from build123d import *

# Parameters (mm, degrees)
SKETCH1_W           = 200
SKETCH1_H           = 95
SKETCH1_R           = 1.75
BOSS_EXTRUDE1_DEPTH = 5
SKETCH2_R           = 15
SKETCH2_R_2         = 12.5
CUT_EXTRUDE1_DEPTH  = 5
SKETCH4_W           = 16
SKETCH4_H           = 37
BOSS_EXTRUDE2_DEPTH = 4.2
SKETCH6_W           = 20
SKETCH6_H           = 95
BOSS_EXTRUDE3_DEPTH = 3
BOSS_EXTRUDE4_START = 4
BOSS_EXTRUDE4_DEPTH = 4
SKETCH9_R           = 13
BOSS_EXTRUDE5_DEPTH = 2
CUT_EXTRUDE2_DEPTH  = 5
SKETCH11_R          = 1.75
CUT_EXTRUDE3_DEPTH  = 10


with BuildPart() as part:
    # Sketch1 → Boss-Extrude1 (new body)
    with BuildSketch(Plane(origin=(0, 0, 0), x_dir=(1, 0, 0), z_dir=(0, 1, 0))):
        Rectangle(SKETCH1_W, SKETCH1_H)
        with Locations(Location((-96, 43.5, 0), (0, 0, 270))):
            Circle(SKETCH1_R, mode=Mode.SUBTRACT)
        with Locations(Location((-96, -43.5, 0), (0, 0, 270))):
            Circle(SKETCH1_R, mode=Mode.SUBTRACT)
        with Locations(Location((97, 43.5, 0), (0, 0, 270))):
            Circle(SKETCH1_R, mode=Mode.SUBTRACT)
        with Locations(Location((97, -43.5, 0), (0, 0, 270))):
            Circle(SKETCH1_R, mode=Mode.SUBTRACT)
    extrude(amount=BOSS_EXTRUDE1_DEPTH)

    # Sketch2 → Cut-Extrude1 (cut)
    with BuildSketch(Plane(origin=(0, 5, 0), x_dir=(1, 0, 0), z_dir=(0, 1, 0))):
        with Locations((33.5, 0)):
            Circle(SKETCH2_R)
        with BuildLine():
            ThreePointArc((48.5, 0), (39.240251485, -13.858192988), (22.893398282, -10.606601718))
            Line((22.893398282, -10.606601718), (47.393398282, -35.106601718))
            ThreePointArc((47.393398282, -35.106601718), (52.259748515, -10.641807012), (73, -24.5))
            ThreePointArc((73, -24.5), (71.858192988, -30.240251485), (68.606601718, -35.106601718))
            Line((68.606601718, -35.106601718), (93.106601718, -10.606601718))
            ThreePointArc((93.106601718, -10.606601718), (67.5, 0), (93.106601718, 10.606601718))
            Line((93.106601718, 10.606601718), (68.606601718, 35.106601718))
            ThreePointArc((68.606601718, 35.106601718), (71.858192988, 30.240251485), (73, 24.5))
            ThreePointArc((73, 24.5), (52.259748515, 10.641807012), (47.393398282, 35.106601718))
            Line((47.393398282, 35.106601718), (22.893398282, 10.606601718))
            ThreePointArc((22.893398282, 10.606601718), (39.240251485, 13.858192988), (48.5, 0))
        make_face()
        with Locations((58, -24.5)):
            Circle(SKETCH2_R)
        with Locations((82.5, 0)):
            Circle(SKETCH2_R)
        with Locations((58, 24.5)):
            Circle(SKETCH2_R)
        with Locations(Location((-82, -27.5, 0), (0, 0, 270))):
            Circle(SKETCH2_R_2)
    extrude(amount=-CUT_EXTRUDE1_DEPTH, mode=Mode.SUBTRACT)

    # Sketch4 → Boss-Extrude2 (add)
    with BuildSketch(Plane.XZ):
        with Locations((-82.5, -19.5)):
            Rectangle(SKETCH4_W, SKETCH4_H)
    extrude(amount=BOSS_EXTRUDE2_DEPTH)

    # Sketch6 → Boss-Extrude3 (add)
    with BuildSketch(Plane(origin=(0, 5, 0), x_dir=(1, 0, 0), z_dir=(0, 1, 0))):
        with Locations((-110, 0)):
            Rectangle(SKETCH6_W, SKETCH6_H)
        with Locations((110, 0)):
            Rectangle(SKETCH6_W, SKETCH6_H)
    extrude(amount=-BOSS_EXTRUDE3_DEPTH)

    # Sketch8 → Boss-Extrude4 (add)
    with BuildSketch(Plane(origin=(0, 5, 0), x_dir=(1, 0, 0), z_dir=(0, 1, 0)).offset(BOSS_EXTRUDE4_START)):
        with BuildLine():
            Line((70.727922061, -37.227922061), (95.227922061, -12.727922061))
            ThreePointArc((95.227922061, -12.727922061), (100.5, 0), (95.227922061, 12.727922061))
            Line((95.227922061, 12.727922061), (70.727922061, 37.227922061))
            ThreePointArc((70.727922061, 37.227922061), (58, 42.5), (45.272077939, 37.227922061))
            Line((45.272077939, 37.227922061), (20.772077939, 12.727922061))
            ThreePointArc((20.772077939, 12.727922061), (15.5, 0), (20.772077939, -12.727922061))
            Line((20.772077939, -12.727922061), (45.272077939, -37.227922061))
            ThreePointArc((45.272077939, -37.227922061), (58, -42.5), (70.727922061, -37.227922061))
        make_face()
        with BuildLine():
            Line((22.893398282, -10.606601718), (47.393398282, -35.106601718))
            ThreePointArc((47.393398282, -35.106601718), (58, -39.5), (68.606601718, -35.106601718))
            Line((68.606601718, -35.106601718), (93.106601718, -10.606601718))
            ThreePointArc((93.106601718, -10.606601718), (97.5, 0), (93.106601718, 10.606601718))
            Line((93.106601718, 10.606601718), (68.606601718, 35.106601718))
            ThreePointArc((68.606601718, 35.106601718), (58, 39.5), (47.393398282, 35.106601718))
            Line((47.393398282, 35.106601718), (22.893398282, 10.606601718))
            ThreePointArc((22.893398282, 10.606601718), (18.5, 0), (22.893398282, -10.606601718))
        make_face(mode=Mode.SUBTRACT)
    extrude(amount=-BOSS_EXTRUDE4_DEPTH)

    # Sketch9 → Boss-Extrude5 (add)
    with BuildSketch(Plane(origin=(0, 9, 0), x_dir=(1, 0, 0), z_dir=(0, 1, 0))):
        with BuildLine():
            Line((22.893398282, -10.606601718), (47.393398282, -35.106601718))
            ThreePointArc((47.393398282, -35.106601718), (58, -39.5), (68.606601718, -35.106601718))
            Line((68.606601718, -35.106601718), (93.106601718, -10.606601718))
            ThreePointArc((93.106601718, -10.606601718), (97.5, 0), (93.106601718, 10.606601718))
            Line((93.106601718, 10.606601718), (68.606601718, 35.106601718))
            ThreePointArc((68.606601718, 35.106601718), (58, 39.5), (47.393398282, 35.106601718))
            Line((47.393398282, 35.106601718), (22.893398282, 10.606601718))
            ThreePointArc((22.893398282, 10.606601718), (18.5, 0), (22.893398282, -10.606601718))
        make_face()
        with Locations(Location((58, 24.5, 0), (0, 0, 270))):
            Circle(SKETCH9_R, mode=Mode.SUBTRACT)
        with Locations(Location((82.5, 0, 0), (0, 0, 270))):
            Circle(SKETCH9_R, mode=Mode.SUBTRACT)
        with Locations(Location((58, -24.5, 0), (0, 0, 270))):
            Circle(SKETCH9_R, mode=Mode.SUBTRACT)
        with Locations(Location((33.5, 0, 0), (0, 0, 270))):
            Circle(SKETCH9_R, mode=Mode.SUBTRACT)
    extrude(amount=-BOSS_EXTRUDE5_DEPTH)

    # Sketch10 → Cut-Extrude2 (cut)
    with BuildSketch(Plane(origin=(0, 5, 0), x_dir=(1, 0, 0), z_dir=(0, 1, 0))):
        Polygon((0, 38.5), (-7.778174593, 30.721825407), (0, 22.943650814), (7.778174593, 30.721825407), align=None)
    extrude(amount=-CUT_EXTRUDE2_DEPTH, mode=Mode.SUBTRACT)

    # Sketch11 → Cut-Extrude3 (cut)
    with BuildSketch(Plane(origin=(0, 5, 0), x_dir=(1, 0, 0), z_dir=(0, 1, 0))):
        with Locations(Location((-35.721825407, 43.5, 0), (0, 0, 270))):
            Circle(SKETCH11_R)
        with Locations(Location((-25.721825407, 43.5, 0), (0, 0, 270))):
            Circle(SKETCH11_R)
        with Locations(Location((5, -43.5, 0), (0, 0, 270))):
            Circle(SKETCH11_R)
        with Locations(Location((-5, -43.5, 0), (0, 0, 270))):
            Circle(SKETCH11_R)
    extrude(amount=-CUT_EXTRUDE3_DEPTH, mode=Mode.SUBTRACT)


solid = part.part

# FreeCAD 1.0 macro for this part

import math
import FreeCAD as App
import Part
import Sketcher
from FreeCAD import Vector


def add_polygon(sketch, points):
    """Adds a closed chain of lines whose ends are joined by coincident constraints."""
    first, n = sketch.GeometryCount, len(points)
    for a, b in zip(points, points[1:] + points[:1]):
        sketch.addGeometry(Part.LineSegment(App.Vector(*a, 0), App.Vector(*b, 0)), False)
    for i in range(n):
        sketch.addConstraint(Sketcher.Constraint("Coincident", first + i, 2, first + (i + 1) % n, 1))

doc = App.newDocument("Part")
body = doc.addObject("PartDesign::Body", "Body")

# Sketch on XZ plane
sketch1 = body.newObject("Sketcher::SketchObject", "Sketch")
sketch1.AttachmentSupport = (doc.getObject("XZ_Plane"), [""])
sketch1.MapMode = "FlatFace"
add_polygon(sketch1, [(-100, -47.5), (-100, 47.5), (100, 47.5), (100, -47.5)])  # lines 0-3
sketch1.addGeometry(Part.Circle(Vector(-96, 43.5, 0), Vector(0, 0, 1), 1.8), False)  # 4
sketch1.addGeometry(Part.Circle(Vector(97, 43.5, 0), Vector(0, 0, 1), 1.8), False)  # 5
sketch1.addGeometry(Part.Circle(Vector(-96, -43.5, 0), Vector(0, 0, 1), 1.8), False)  # 6
sketch1.addGeometry(Part.Circle(Vector(97, -43.5, 0), Vector(0, 0, 1), 1.8), False)  # 7
sketch1.addConstraint([
    Sketcher.Constraint("Vertical", 0),
    Sketcher.Constraint("Horizontal", 1),
    Sketcher.Constraint("Vertical", 2),
    Sketcher.Constraint("Horizontal", 3),
    Sketcher.Constraint("Equal", 4, 5),
    Sketcher.Constraint("Equal", 5, 6),
    Sketcher.Constraint("Equal", 6, 7),
    Sketcher.Constraint("Symmetric", 0, 2, 2, 2, -1, 1),
    Sketcher.Constraint("Symmetric", 4, 3, 6, 3, -1),
    Sketcher.Constraint("Symmetric", 5, 3, 7, 3, -1),
    Sketcher.Constraint("Horizontal", 4, 3, 5, 3),
    Sketcher.Constraint("Diameter", 4, 3.5),
    Sketcher.Constraint("DistanceX", 1, 1, 1, 2, 200.0),
    Sketcher.Constraint("DistanceY", 0, 1, 0, 2, 95.0),
    Sketcher.Constraint("DistanceX", 4, 3, -1, 1, 96.0),
    Sketcher.Constraint("DistanceX", -1, 1, 5, 3, 97.0),
    Sketcher.Constraint("DistanceY", 6, 3, 4, 3, 87.0),
])
pad1 = body.newObject("PartDesign::Pad", "Pad")
pad1.Profile = sketch1
pad1.Length = 5
pad1.Reversed = True

# Sketch on XZ plane
sketch2 = body.newObject("Sketcher::SketchObject", "Sketch001")
sketch2.AttachmentSupport = (doc.getObject("XZ_Plane"), [""])
sketch2.MapMode = "FlatFace"
sketch2.AttachmentOffset = App.Placement(Vector(0, 0, -5), App.Rotation())
sketch2.addGeometry([
    Part.ArcOfCircle(Part.Circle(Vector(34, 0, 0), Vector(0, 0, 1), 15), math.radians(135), math.radians(225)),  # 0
    Part.LineSegment(Vector(23, 11, 0), Vector(47, 35, 0)),  # 1
    Part.ArcOfCircle(Part.Circle(Vector(58, 24, 0), Vector(0, 0, 1), 15), math.radians(45), math.radians(135)),  # 2
    Part.LineSegment(Vector(69, 35, 0), Vector(93, 11, 0)),  # 3
    Part.ArcOfCircle(Part.Circle(Vector(82, 0, 0), Vector(0, 0, 1), 15), math.radians(-45), math.radians(45)),  # 4
    Part.LineSegment(Vector(93, -11, 0), Vector(69, -35, 0)),  # 5
    Part.ArcOfCircle(Part.Circle(Vector(58, -24, 0), Vector(0, 0, 1), 15), math.radians(-135), math.radians(-45)),  # 6
    Part.LineSegment(Vector(47, -35, 0), Vector(23, -11, 0)),  # 7
    Part.Circle(Vector(-82, 28, 0), Vector(0, 0, 1), 12),  # 8
], False)
sketch2.addConstraint([
    Sketcher.Constraint("Tangent", 0, 1, 1, 1),
    Sketcher.Constraint("Tangent", 1, 2, 2, 2),
    Sketcher.Constraint("Tangent", 2, 1, 3, 1),
    Sketcher.Constraint("Tangent", 3, 2, 4, 2),
    Sketcher.Constraint("Tangent", 4, 1, 5, 1),
    Sketcher.Constraint("Tangent", 5, 2, 6, 2),
    Sketcher.Constraint("Tangent", 6, 1, 7, 1),
    Sketcher.Constraint("Tangent", 7, 2, 0, 2),
    Sketcher.Constraint("Equal", 0, 2),
    Sketcher.Constraint("Equal", 2, 4),
    Sketcher.Constraint("Equal", 4, 6),
    Sketcher.Constraint("Symmetric", 2, 3, 6, 3, -1),
    Sketcher.Constraint("PointOnObject", 0, 3, -1),
    Sketcher.Constraint("PointOnObject", 4, 3, -1),
    Sketcher.Constraint("Perpendicular", 1, 3),
    Sketcher.Constraint("Perpendicular", 3, 5),
    Sketcher.Constraint("Diameter", 8, 25.0),
    Sketcher.Constraint("Radius", 0, 15.0),
    Sketcher.Constraint("DistanceX", -1, 1, 2, 3, 58.0),
    Sketcher.Constraint("DistanceX", 8, 3, -1, 1, 82.0),
    Sketcher.Constraint("DistanceX", 0, 3, 4, 3, 49.0),
    Sketcher.Constraint("DistanceY", 2, 3, 8, 3, 3.0),
])
pocket1 = body.newObject("PartDesign::Pocket", "Pocket")
pocket1.Profile = sketch2
pocket1.Length = 5
pocket1.Reversed = True

# Sketch on XZ plane
sketch3 = body.newObject("Sketcher::SketchObject", "Sketch002")
sketch3.AttachmentSupport = (doc.getObject("XZ_Plane"), [""])
sketch3.MapMode = "FlatFace"
add_polygon(sketch3, [(-90, -1), (-90, -38), (-74, -38), (-74, -1)])  # lines 0-3
sketch3.addConstraint([
    Sketcher.Constraint("Vertical", 0),
    Sketcher.Constraint("Horizontal", 1),
    Sketcher.Constraint("Vertical", 2),
    Sketcher.Constraint("Horizontal", 3),
    Sketcher.Constraint("DistanceX", 1, 1, 1, 2, 16.0),
    Sketcher.Constraint("DistanceY", 0, 2, 0, 1, 37.0),
    Sketcher.Constraint("DistanceY", 0, 2, -1, 1, 38.0),
    Sketcher.Constraint("DistanceX", 0, 2, -1, 1, 90.5),
])
pad2 = body.newObject("PartDesign::Pad", "Pad001")
pad2.Profile = sketch3
pad2.Length = 4.2

# Sketch on XZ plane
sketch4 = body.newObject("Sketcher::SketchObject", "Sketch003")
sketch4.AttachmentSupport = (doc.getObject("XZ_Plane"), [""])
sketch4.MapMode = "FlatFace"
sketch4.AttachmentOffset = App.Placement(Vector(0, 0, -5), App.Rotation())
add_polygon(sketch4, [(-120, -48), (-120, 48), (-100, 48), (-100, -48)])  # lines 0-3
add_polygon(sketch4, [(100, -48), (100, 48), (120, 48), (120, -48)])  # lines 4-7
sketch4.addConstraint([
    Sketcher.Constraint("Vertical", 0),
    Sketcher.Constraint("Horizontal", 1),
    Sketcher.Constraint("Vertical", 2),
    Sketcher.Constraint("Horizontal", 3),
    Sketcher.Constraint("Vertical", 4),
    Sketcher.Constraint("Horizontal", 5),
    Sketcher.Constraint("Vertical", 6),
    Sketcher.Constraint("Horizontal", 7),
    Sketcher.Constraint("Symmetric", 2, 2, 4, 2, -1, 1),
    Sketcher.Constraint("Symmetric", 0, 2, 6, 2, -1, 1),
    Sketcher.Constraint("Horizontal", 1, 2, 4, 2),
    Sketcher.Constraint("DistanceX", 1, 1, 1, 2, 20.0),
    Sketcher.Constraint("DistanceY", 0, 1, 0, 2, 95.0),
    Sketcher.Constraint("DistanceX", 0, 2, -1, 1, 120.0),
])
pad3 = body.newObject("PartDesign::Pad", "Pad002")
pad3.Profile = sketch4
pad3.Length = 3

# Sketch on XZ plane
sketch5 = body.newObject("Sketcher::SketchObject", "Sketch004")
sketch5.AttachmentSupport = (doc.getObject("XZ_Plane"), [""])
sketch5.MapMode = "FlatFace"
sketch5.AttachmentOffset = App.Placement(Vector(0, 0, -9), App.Rotation())
sketch5.addGeometry([
    Part.LineSegment(Vector(71, 37, 0), Vector(95, 13, 0)),  # 0
    Part.ArcOfCircle(Part.Circle(Vector(83, 0, 0), Vector(0, 0, 1), 18), math.radians(-45), math.radians(45)),  # 1
    Part.LineSegment(Vector(95, -13, 0), Vector(71, -37, 0)),  # 2
    Part.ArcOfCircle(Part.Circle(Vector(58, -25, 0), Vector(0, 0, 1), 18), math.radians(-135), math.radians(-45)),  # 3
    Part.LineSegment(Vector(45, -37, 0), Vector(21, -13, 0)),  # 4
    Part.ArcOfCircle(Part.Circle(Vector(33, 0, 0), Vector(0, 0, 1), 18), math.radians(135), math.radians(225)),  # 5
    Part.LineSegment(Vector(21, 13, 0), Vector(45, 37, 0)),  # 6
    Part.ArcOfCircle(Part.Circle(Vector(58, 25, 0), Vector(0, 0, 1), 18), math.radians(45), math.radians(135)),  # 7
    Part.LineSegment(Vector(47, 35, 0), Vector(23, 11, 0)),  # 8
    Part.ArcOfCircle(Part.Circle(Vector(34, 0, 0), Vector(0, 0, 1), 15), math.radians(135), math.radians(225)),  # 9
    Part.LineSegment(Vector(23, -11, 0), Vector(47, -35, 0)),  # 10
    Part.ArcOfCircle(Part.Circle(Vector(58, -24, 0), Vector(0, 0, 1), 15), math.radians(-135), math.radians(-45)),  # 11
    Part.LineSegment(Vector(69, -35, 0), Vector(93, -11, 0)),  # 12
    Part.ArcOfCircle(Part.Circle(Vector(82, 0, 0), Vector(0, 0, 1), 15), math.radians(-45), math.radians(45)),  # 13
    Part.LineSegment(Vector(93, 11, 0), Vector(69, 35, 0)),  # 14
    Part.ArcOfCircle(Part.Circle(Vector(58, 24, 0), Vector(0, 0, 1), 15), math.radians(45), math.radians(135)),  # 15
], False)
sketch5.addConstraint([
    Sketcher.Constraint("Tangent", 0, 2, 1, 2),
    Sketcher.Constraint("Tangent", 1, 1, 2, 1),
    Sketcher.Constraint("Tangent", 2, 2, 3, 2),
    Sketcher.Constraint("Tangent", 3, 1, 4, 1),
    Sketcher.Constraint("Tangent", 4, 2, 5, 2),
    Sketcher.Constraint("Tangent", 5, 1, 6, 1),
    Sketcher.Constraint("Tangent", 6, 2, 7, 2),
    Sketcher.Constraint("Tangent", 7, 1, 0, 1),
    Sketcher.Constraint("Tangent", 8, 2, 9, 1),
    Sketcher.Constraint("Tangent", 9, 2, 10, 1),
    Sketcher.Constraint("Tangent", 10, 2, 11, 1),
    Sketcher.Constraint("Tangent", 11, 2, 12, 1),
    Sketcher.Constraint("Tangent", 12, 2, 13, 1),
    Sketcher.Constraint("Tangent", 13, 2, 14, 1),
    Sketcher.Constraint("Tangent", 14, 2, 15, 1),
    Sketcher.Constraint("Tangent", 15, 2, 8, 1),
    Sketcher.Constraint("Coincident", 9, 3, 5, 3),
    Sketcher.Constraint("Coincident", 11, 3, 3, 3),
    Sketcher.Constraint("Coincident", 13, 3, 1, 3),
    Sketcher.Constraint("Coincident", 15, 3, 7, 3),
    Sketcher.Constraint("Equal", 1, 3),
    Sketcher.Constraint("Equal", 3, 5),
    Sketcher.Constraint("Equal", 5, 7),
    Sketcher.Constraint("Equal", 9, 11),
    Sketcher.Constraint("Equal", 11, 13),
    Sketcher.Constraint("Equal", 13, 15),
    Sketcher.Constraint("Symmetric", 3, 3, 7, 3, -1),
    Sketcher.Constraint("PointOnObject", 1, 3, -1),
    Sketcher.Constraint("PointOnObject", 5, 3, -1),
    Sketcher.Constraint("Perpendicular", 0, 2),
    Sketcher.Constraint("Perpendicular", 2, 4),
    Sketcher.Constraint("Radius", 1, 18.0),
    Sketcher.Constraint("Radius", 9, 15.0),
    Sketcher.Constraint("DistanceX", -1, 1, 3, 3, 58.0),
    Sketcher.Constraint("DistanceX", 5, 3, 1, 3, 49.0),
])
pad4 = body.newObject("PartDesign::Pad", "Pad003")
pad4.Profile = sketch5
pad4.Length = 4

# Sketch on XZ plane
sketch6 = body.newObject("Sketcher::SketchObject", "Sketch005")
sketch6.AttachmentSupport = (doc.getObject("XZ_Plane"), [""])
sketch6.MapMode = "FlatFace"
sketch6.AttachmentOffset = App.Placement(Vector(0, 0, -9), App.Rotation())
sketch6.addGeometry([
    Part.LineSegment(Vector(23, 11, 0), Vector(47, 35, 0)),  # 0
    Part.ArcOfCircle(Part.Circle(Vector(58, 24, 0), Vector(0, 0, 1), 15), math.radians(45), math.radians(135)),  # 1
    Part.LineSegment(Vector(69, 35, 0), Vector(93, 11, 0)),  # 2
    Part.ArcOfCircle(Part.Circle(Vector(82, 0, 0), Vector(0, 0, 1), 15), math.radians(-45), math.radians(45)),  # 3
    Part.LineSegment(Vector(93, -11, 0), Vector(69, -35, 0)),  # 4
    Part.ArcOfCircle(Part.Circle(Vector(58, -24, 0), Vector(0, 0, 1), 15), math.radians(-135), math.radians(-45)),  # 5
    Part.LineSegment(Vector(47, -35, 0), Vector(23, -11, 0)),  # 6
    Part.ArcOfCircle(Part.Circle(Vector(34, 0, 0), Vector(0, 0, 1), 15), math.radians(135), math.radians(225)),  # 7
    Part.Circle(Vector(58, 24, 0), Vector(0, 0, 1), 13),  # 8
    Part.Circle(Vector(34, 0, 0), Vector(0, 0, 1), 13),  # 9
    Part.Circle(Vector(82, 0, 0), Vector(0, 0, 1), 13),  # 10
    Part.Circle(Vector(58, -24, 0), Vector(0, 0, 1), 13),  # 11
], False)
sketch6.addConstraint([
    Sketcher.Constraint("Tangent", 0, 2, 1, 2),
    Sketcher.Constraint("Tangent", 1, 1, 2, 1),
    Sketcher.Constraint("Tangent", 2, 2, 3, 2),
    Sketcher.Constraint("Tangent", 3, 1, 4, 1),
    Sketcher.Constraint("Tangent", 4, 2, 5, 2),
    Sketcher.Constraint("Tangent", 5, 1, 6, 1),
    Sketcher.Constraint("Tangent", 6, 2, 7, 2),
    Sketcher.Constraint("Tangent", 7, 1, 0, 1),
    Sketcher.Constraint("Coincident", 8, 3, 1, 3),
    Sketcher.Constraint("Coincident", 9, 3, 7, 3),
    Sketcher.Constraint("Coincident", 10, 3, 3, 3),
    Sketcher.Constraint("Coincident", 11, 3, 5, 3),
    Sketcher.Constraint("Equal", 1, 3),
    Sketcher.Constraint("Equal", 3, 5),
    Sketcher.Constraint("Equal", 5, 7),
    Sketcher.Constraint("Equal", 8, 9),
    Sketcher.Constraint("Equal", 9, 10),
    Sketcher.Constraint("Equal", 10, 11),
    Sketcher.Constraint("Symmetric", 1, 3, 5, 3, -1),
    Sketcher.Constraint("PointOnObject", 3, 3, -1),
    Sketcher.Constraint("PointOnObject", 7, 3, -1),
    Sketcher.Constraint("Perpendicular", 0, 2),
    Sketcher.Constraint("Perpendicular", 2, 4),
    Sketcher.Constraint("Diameter", 8, 26.0),
    Sketcher.Constraint("Radius", 1, 15.0),
    Sketcher.Constraint("DistanceX", -1, 1, 1, 3, 58.0),
    Sketcher.Constraint("DistanceY", 5, 3, 1, 3, 49.0),
])
pad5 = body.newObject("PartDesign::Pad", "Pad004")
pad5.Profile = sketch6
pad5.Length = 2

# Sketch on XZ plane
sketch7 = body.newObject("Sketcher::SketchObject", "Sketch006")
sketch7.AttachmentSupport = (doc.getObject("XZ_Plane"), [""])
sketch7.MapMode = "FlatFace"
sketch7.AttachmentOffset = App.Placement(Vector(0, 0, -5), App.Rotation())
add_polygon(sketch7, [(0, -38), (-8, -31), (0, -23), (8, -31)])  # lines 0-3
sketch7.addConstraint([
    Sketcher.Constraint("Symmetric", 0, 2, 2, 2, -2),
    Sketcher.Constraint("PointOnObject", 1, 2, -2),
    Sketcher.Constraint("PointOnObject", 3, 2, -2),
    Sketcher.Constraint("Perpendicular", 0, 1),
    Sketcher.Constraint("Perpendicular", 1, 2),
    Sketcher.Constraint("Distance", 0, 11.0),
    Sketcher.Constraint("DistanceY", 3, 2, -1, 1, 38.5),
])
pocket2 = body.newObject("PartDesign::Pocket", "Pocket001")
pocket2.Profile = sketch7
pocket2.Length = 5
pocket2.Reversed = True

# Sketch on XZ plane
sketch8 = body.newObject("Sketcher::SketchObject", "Sketch007")
sketch8.AttachmentSupport = (doc.getObject("XZ_Plane"), [""])
sketch8.MapMode = "FlatFace"
sketch8.AttachmentOffset = App.Placement(Vector(0, 0, -5), App.Rotation())
sketch8.addGeometry([
    Part.Circle(Vector(-35.7, -43.5, 0), Vector(0, 0, 1), 1.8),
    Part.Circle(Vector(-25.7, -43.5, 0), Vector(0, 0, 1), 1.8),
    Part.Circle(Vector(5, 43.5, 0), Vector(0, 0, 1), 1.8),
    Part.Circle(Vector(-5, 43.5, 0), Vector(0, 0, 1), 1.8),
], False)
sketch8.addConstraint([
    Sketcher.Constraint("Equal", 0, 1),
    Sketcher.Constraint("Equal", 1, 2),
    Sketcher.Constraint("Equal", 2, 3),
    Sketcher.Constraint("Symmetric", 2, 3, 3, 3, -2),
    Sketcher.Constraint("Horizontal", 0, 3, 1, 3),
    Sketcher.Constraint("Diameter", 0, 3.5),
    Sketcher.Constraint("DistanceX", -1, 1, 2, 3, 5.0),
    Sketcher.Constraint("DistanceX", 0, 3, 1, 3, 10.0),
    Sketcher.Constraint("DistanceY", 1, 3, 2, 3, 87.0),
    Sketcher.Constraint("DistanceY", 0, 3, -1, 1, 43.5),
    Sketcher.Constraint("DistanceX", 0, 3, -1, 1, 35.721825),
])
pocket3 = body.newObject("PartDesign::Pocket", "Pocket002")
pocket3.Profile = sketch8
pocket3.Length = 10
pocket3.Reversed = True

doc.recompute()
